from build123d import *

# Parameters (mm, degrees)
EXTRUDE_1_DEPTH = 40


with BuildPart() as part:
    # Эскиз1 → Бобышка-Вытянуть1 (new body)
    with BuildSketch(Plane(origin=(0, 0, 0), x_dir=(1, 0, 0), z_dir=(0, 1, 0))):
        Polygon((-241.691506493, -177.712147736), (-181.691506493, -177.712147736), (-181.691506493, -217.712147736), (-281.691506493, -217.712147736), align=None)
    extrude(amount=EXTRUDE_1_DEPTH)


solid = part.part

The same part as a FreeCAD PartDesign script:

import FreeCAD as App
import Part
import Sketcher

V = App.Vector
Q = App.Units.Quantity


def add_polygon(sketch, points):
    """Adds a closed chain of lines whose ends are joined by coincident constraints."""
    first, n = sketch.GeometryCount, len(points)
    for a, b in zip(points, points[1:] + points[:1]):
        sketch.addGeometry(Part.LineSegment(App.Vector(*a, 0), App.Vector(*b, 0)), False)
    for i in range(n):
        sketch.addConstraint(Sketcher.Constraint("Coincident", first + i, 2, first + (i + 1) % n, 1))

doc = App.newDocument("Part")
body = doc.addObject("PartDesign::Body", "Body")

sketch1 = body.newObject("Sketcher::SketchObject", "Sketch")
sketch1.AttachmentSupport = (doc.getObject("XZ_Plane"), [""])
sketch1.MapMode = "FlatFace"
add_polygon(sketch1, [(-181.691506, 177.712148), (-241.691506, 177.712148), (-281.691506, 217.712148), (-181.691506, 217.712148)])
sketch1.addConstraint(Sketcher.Constraint("Horizontal", 0))
sketch1.addConstraint(Sketcher.Constraint("Horizontal", 2))
sketch1.addConstraint(Sketcher.Constraint("Vertical", 3))
sketch1.addConstraint(Sketcher.Constraint("DistanceX", 0, 2, 0, 1, Q("60 mm")))
sketch1.addConstraint(Sketcher.Constraint("DistanceX", 2, 1, 2, 2, Q("100 mm")))
sketch1.addConstraint(Sketcher.Constraint("DistanceY", 3, 2, 3, 1, Q("40 mm")))
sketch1.addConstraint(Sketcher.Constraint("DistanceX", 0, 2, -1, 1, Q("241.691506 mm")))
sketch1.addConstraint(Sketcher.Constraint("DistanceY", -1, 1, 0, 2, Q("177.712148 mm")))
pad1 = body.newObject("PartDesign::Pad", "Pad")
pad1.Profile = sketch1
pad1.Length = 40
pad1.Reversed = True

doc.recompute()
